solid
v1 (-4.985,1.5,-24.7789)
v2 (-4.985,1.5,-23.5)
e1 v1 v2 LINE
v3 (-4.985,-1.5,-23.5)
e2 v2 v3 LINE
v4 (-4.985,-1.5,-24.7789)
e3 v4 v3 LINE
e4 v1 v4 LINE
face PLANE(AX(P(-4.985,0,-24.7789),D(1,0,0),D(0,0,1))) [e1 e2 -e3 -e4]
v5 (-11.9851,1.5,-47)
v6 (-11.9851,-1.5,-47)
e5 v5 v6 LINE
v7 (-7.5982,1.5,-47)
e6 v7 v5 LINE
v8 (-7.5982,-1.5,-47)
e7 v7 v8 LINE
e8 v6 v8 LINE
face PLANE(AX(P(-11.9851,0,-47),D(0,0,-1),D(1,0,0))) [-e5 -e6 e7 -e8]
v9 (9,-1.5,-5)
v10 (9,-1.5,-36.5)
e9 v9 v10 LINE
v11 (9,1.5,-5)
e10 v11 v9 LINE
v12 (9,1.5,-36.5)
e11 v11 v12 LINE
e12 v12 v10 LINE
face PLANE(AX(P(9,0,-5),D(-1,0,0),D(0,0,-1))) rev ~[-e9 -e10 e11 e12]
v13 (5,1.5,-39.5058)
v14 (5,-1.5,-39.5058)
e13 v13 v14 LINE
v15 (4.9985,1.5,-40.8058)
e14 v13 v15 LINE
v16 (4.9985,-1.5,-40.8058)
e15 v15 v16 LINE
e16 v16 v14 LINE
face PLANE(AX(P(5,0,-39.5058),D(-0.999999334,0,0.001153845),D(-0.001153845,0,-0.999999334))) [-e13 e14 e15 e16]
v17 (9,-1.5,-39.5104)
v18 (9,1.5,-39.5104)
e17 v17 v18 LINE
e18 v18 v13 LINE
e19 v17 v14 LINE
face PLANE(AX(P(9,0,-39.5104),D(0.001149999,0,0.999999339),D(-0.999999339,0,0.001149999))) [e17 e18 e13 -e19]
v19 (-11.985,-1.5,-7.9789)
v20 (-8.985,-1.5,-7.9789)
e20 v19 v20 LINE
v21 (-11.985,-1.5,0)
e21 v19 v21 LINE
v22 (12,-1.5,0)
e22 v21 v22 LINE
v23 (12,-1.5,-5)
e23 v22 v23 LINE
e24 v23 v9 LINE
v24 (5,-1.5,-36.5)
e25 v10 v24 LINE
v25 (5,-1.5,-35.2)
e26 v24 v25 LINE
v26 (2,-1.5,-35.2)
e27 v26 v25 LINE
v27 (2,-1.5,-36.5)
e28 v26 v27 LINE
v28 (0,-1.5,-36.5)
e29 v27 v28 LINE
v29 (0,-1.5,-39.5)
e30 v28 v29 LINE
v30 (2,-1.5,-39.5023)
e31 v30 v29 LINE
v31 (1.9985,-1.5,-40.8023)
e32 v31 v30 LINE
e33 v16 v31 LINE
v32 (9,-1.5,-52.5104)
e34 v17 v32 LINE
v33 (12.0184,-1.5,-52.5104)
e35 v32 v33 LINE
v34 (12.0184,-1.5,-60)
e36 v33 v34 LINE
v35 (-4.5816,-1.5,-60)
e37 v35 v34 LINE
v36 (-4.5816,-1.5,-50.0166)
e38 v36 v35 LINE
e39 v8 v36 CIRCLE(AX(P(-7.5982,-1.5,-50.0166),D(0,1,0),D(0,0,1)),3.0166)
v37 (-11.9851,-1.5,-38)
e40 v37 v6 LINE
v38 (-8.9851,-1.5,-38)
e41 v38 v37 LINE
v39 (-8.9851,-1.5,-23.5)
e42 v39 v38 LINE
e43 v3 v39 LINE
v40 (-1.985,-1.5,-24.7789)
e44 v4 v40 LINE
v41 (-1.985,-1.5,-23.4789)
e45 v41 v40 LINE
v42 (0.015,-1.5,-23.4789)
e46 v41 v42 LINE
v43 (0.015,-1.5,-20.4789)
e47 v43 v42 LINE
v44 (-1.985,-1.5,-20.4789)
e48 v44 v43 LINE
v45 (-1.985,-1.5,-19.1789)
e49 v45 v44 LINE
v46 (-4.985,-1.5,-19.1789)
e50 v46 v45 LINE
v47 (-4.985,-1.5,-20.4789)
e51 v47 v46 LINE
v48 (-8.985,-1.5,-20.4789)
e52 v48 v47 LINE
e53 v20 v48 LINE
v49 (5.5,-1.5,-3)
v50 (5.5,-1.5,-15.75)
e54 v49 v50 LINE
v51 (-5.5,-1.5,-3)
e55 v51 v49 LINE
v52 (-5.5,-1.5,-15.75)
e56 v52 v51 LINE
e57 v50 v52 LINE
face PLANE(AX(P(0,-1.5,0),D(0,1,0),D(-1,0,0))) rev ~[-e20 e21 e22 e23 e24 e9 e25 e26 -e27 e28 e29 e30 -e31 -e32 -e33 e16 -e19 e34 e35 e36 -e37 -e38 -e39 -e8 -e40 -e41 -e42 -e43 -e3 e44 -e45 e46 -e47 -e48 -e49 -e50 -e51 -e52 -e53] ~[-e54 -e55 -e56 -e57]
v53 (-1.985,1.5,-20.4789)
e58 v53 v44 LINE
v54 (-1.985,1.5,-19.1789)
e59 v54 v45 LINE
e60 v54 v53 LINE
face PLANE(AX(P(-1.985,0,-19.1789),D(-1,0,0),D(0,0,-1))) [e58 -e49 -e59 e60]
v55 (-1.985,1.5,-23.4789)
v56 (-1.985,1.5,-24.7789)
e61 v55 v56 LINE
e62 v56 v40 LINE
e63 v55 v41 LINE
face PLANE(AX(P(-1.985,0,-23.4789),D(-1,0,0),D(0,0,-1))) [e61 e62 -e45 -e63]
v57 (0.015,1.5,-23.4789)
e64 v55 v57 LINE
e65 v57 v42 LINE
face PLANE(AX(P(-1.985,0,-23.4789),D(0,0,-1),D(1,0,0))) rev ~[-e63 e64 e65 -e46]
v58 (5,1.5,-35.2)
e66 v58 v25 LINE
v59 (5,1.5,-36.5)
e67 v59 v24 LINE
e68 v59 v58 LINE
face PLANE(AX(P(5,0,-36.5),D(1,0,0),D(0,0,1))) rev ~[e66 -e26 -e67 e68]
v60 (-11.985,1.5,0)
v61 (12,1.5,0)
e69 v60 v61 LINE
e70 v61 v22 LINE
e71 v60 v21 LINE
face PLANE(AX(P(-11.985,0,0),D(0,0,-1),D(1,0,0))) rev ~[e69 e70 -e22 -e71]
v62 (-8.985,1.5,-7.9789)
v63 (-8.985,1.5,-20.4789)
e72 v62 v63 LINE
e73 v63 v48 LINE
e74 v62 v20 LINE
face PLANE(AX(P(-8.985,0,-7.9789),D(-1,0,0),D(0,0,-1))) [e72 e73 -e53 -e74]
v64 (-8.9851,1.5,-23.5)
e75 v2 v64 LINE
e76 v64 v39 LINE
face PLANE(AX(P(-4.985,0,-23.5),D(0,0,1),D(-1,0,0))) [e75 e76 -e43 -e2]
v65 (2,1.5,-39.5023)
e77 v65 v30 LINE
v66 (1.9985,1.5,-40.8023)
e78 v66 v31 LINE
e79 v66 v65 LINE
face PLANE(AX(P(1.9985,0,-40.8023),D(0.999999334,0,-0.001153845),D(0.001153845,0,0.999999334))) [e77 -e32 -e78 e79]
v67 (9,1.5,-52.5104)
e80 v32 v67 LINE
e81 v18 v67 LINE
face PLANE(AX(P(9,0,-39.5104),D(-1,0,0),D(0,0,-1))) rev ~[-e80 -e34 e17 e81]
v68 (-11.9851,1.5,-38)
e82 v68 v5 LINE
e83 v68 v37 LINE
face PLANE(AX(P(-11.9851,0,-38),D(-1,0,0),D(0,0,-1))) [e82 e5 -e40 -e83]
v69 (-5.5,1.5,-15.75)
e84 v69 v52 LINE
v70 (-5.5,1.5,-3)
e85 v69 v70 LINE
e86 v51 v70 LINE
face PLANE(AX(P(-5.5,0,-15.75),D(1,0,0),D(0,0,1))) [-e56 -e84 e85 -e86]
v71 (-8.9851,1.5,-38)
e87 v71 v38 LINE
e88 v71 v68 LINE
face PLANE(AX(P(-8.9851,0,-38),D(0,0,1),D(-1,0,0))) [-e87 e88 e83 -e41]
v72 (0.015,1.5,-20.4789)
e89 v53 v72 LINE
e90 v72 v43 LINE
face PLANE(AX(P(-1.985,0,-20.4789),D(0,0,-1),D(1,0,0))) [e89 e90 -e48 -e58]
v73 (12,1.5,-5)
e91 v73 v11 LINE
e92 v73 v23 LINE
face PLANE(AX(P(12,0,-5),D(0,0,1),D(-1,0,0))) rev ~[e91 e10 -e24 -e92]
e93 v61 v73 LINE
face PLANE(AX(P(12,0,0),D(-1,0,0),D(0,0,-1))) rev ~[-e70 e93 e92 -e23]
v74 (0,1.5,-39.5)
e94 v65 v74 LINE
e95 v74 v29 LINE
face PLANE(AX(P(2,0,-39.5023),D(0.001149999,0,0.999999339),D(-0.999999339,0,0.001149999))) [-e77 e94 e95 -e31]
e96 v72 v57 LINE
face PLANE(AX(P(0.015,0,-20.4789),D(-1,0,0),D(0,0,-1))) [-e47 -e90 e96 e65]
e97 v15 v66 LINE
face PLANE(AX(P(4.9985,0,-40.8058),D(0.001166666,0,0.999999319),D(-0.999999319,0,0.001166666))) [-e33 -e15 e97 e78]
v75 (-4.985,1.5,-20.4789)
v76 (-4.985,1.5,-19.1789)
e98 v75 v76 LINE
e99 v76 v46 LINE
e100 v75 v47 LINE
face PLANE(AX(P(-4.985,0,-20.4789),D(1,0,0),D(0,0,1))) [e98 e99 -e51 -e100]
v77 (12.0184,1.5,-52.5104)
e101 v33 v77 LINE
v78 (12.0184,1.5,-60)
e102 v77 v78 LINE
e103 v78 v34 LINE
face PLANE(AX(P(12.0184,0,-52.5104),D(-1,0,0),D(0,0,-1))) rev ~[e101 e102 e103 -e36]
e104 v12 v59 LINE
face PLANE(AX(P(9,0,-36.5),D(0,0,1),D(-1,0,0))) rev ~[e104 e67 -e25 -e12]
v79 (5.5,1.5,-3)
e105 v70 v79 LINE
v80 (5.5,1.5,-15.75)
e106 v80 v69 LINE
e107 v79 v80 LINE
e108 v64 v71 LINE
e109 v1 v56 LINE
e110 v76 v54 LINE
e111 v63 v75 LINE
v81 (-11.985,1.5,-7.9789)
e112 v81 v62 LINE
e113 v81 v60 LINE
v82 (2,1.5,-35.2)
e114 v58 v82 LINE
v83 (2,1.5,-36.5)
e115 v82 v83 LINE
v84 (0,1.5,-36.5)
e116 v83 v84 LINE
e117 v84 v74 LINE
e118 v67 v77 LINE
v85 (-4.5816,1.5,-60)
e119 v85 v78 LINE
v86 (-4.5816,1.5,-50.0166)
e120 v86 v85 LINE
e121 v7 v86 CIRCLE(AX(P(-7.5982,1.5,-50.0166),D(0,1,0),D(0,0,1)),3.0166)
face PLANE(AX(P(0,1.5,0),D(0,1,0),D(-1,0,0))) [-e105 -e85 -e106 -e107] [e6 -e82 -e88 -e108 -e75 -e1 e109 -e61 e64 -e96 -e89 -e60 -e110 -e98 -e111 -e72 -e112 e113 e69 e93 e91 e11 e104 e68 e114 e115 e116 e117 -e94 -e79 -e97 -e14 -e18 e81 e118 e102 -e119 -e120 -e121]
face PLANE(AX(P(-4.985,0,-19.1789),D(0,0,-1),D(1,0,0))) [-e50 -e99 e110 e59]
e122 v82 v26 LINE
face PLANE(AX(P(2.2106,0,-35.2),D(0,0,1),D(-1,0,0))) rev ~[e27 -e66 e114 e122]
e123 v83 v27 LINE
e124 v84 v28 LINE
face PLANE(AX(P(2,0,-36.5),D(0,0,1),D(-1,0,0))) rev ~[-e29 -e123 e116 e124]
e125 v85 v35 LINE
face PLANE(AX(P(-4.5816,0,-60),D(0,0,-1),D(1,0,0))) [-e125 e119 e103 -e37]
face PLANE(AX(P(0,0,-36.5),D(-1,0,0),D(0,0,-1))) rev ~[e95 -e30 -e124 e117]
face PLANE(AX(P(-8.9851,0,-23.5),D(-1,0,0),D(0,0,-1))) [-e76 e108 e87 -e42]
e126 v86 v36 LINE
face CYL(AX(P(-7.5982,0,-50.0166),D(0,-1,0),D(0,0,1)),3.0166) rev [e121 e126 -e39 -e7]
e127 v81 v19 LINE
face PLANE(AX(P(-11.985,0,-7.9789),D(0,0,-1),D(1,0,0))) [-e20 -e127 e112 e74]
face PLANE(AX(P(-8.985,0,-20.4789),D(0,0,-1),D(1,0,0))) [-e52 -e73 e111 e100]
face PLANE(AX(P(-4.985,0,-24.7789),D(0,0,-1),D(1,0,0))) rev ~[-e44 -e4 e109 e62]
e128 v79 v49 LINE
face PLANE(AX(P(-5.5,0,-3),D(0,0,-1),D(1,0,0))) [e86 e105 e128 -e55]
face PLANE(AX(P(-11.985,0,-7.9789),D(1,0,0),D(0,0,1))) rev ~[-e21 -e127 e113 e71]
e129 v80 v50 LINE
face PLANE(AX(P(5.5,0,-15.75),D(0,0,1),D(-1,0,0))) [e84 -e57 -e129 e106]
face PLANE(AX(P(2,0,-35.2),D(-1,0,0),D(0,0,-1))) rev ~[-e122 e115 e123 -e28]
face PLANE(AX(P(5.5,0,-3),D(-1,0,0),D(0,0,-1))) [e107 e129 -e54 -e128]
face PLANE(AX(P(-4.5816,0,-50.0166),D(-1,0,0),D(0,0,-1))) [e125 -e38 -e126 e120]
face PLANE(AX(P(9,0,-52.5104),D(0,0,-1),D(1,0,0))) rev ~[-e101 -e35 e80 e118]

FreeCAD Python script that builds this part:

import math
import FreeCAD as App
import Part
import Sketcher


def add_polygon(sketch, points):
    """Adds a closed chain of lines whose ends are joined by coincident constraints."""
    first, n = sketch.GeometryCount, len(points)
    for a, b in zip(points, points[1:] + points[:1]):
        sketch.addGeometry(Part.LineSegment(App.Vector(*a, 0), App.Vector(*b, 0)), False)
    for i in range(n):
        sketch.addConstraint(Sketcher.Constraint("Coincident", first + i, 2, first + (i + 1) % n, 1))

doc = App.newDocument("Part")
body = doc.addObject("PartDesign::Body", "Body")

# Sketch on XZ plane
sketch1 = body.newObject("Sketcher::SketchObject", "Sketch")
sketch1.AttachmentSupport = (doc.getObject("XZ_Plane"), [""])
sketch1.MapMode = "FlatFace"
sketch1.addGeometry(Part.LineSegment(App.Vector(5, -39.5, 0), App.Vector(9, -39.5, 0)), False)  # 0
sketch1.addGeometry(Part.LineSegment(App.Vector(9, -39.5, 0), App.Vector(9, -52.5, 0)), False)  # 1
sketch1.addGeometry(Part.LineSegment(App.Vector(9, -52.5, 0), App.Vector(12, -52.5, 0)), False)  # 2
sketch1.addGeometry(Part.LineSegment(App.Vector(12, -52.5, 0), App.Vector(12, -60, 0)), False)  # 3
sketch1.addGeometry(Part.LineSegment(App.Vector(12, -60, 0), App.Vector(-4.6, -60, 0)), False)  # 4
sketch1.addGeometry(Part.LineSegment(App.Vector(-4.6, -60, 0), App.Vector(-4.6, -50, 0)), False)  # 5
sketch1.addGeometry(Part.ArcOfCircle(Part.Circle(App.Vector(-7.6, -50, 0), App.Vector(0, 0, 1), 3), math.radians(0), math.radians(90)), False)  # 6
sketch1.addGeometry(Part.LineSegment(App.Vector(-7.6, -47, 0), App.Vector(-12, -47, 0)), False)  # 7
sketch1.addGeometry(Part.LineSegment(App.Vector(-12, -47, 0), App.Vector(-12, -38, 0)), False)  # 8
sketch1.addGeometry(Part.LineSegment(App.Vector(-12, -38, 0), App.Vector(-9, -38, 0)), False)  # 9
sketch1.addGeometry(Part.LineSegment(App.Vector(-9, -38, 0), App.Vector(-9, -23.5, 0)), False)  # 10
sketch1.addGeometry(Part.LineSegment(App.Vector(-9, -23.5, 0), App.Vector(-5, -23.5, 0)), False)  # 11
sketch1.addGeometry(Part.LineSegment(App.Vector(-5, -23.5, 0), App.Vector(-5, -24.8, 0)), False)  # 12
sketch1.addGeometry(Part.LineSegment(App.Vector(-5, -24.8, 0), App.Vector(-2, -24.8, 0)), False)  # 13
sketch1.addGeometry(Part.LineSegment(App.Vector(-2, -24.8, 0), App.Vector(-2, -23.5, 0)), False)  # 14
sketch1.addGeometry(Part.LineSegment(App.Vector(-2, -23.5, 0), App.Vector(0, -23.5, 0)), False)  # 15
sketch1.addGeometry(Part.LineSegment(App.Vector(0, -23.5, 0), App.Vector(0, -20.5, 0)), False)  # 16
sketch1.addGeometry(Part.LineSegment(App.Vector(0, -20.5, 0), App.Vector(-2, -20.5, 0)), False)  # 17
sketch1.addGeometry(Part.LineSegment(App.Vector(-2, -20.5, 0), App.Vector(-2, -19.2, 0)), False)  # 18
sketch1.addGeometry(Part.LineSegment(App.Vector(-2, -19.2, 0), App.Vector(-5, -19.2, 0)), False)  # 19
sketch1.addGeometry(Part.LineSegment(App.Vector(-5, -19.2, 0), App.Vector(-5, -20.5, 0)), False)  # 20
sketch1.addGeometry(Part.LineSegment(App.Vector(-5, -20.5, 0), App.Vector(-9, -20.5, 0)), False)  # 21
sketch1.addGeometry(Part.LineSegment(App.Vector(-9, -20.5, 0), App.Vector(-9, -8, 0)), False)  # 22
sketch1.addGeometry(Part.LineSegment(App.Vector(-9, -8, 0), App.Vector(-12, -8, 0)), False)  # 23
sketch1.addGeometry(Part.LineSegment(App.Vector(-12, -8, 0), App.Vector(-12, 0, 0)), False)  # 24
sketch1.addGeometry(Part.LineSegment(App.Vector(-12, 0, 0), App.Vector(12, 0, 0)), False)  # 25
sketch1.addGeometry(Part.LineSegment(App.Vector(12, 0, 0), App.Vector(12, -5, 0)), False)  # 26
sketch1.addGeometry(Part.LineSegment(App.Vector(12, -5, 0), App.Vector(9, -5, 0)), False)  # 27
sketch1.addGeometry(Part.LineSegment(App.Vector(9, -5, 0), App.Vector(9, -36.5, 0)), False)  # 28
sketch1.addGeometry(Part.LineSegment(App.Vector(9, -36.5, 0), App.Vector(5, -36.5, 0)), False)  # 29
sketch1.addGeometry(Part.LineSegment(App.Vector(5, -36.5, 0), App.Vector(5, -35.2, 0)), False)  # 30
sketch1.addGeometry(Part.LineSegment(App.Vector(5, -35.2, 0), App.Vector(2, -35.2, 0)), False)  # 31
sketch1.addGeometry(Part.LineSegment(App.Vector(2, -35.2, 0), App.Vector(2, -36.5, 0)), False)  # 32
sketch1.addGeometry(Part.LineSegment(App.Vector(2, -36.5, 0), App.Vector(0, -36.5, 0)), False)  # 33
sketch1.addGeometry(Part.LineSegment(App.Vector(0, -36.5, 0), App.Vector(0, -39.5, 0)), False)  # 34
sketch1.addGeometry(Part.LineSegment(App.Vector(0, -39.5, 0), App.Vector(2, -39.5, 0)), False)  # 35
sketch1.addGeometry(Part.LineSegment(App.Vector(2, -39.5, 0), App.Vector(2, -40.8, 0)), False)  # 36
sketch1.addGeometry(Part.LineSegment(App.Vector(2, -40.8, 0), App.Vector(5, -40.8, 0)), False)  # 37
sketch1.addGeometry(Part.LineSegment(App.Vector(5, -40.8, 0), App.Vector(5, -39.5, 0)), False)  # 38
add_polygon(sketch1, [(5.5, -3), (-5.5, -3), (-5.5, -15.8), (5.5, -15.8)])  # lines 39-42
sketch1.addConstraint(Sketcher.Constraint("Coincident", 0, 2, 1, 1))
sketch1.addConstraint(Sketcher.Constraint("Coincident", 1, 2, 2, 1))
sketch1.addConstraint(Sketcher.Constraint("Coincident", 2, 2, 3, 1))
sketch1.addConstraint(Sketcher.Constraint("Coincident", 3, 2, 4, 1))
sketch1.addConstraint(Sketcher.Constraint("Coincident", 4, 2, 5, 1))
sketch1.addConstraint(Sketcher.Constraint("Tangent", 5, 2, 6, 1))
sketch1.addConstraint(Sketcher.Constraint("Tangent", 6, 2, 7, 1))
sketch1.addConstraint(Sketcher.Constraint("Coincident", 7, 2, 8, 1))
sketch1.addConstraint(Sketcher.Constraint("Coincident", 8, 2, 9, 1))
sketch1.addConstraint(Sketcher.Constraint("Coincident", 9, 2, 10, 1))
sketch1.addConstraint(Sketcher.Constraint("Coincident", 10, 2, 11, 1))
sketch1.addConstraint(Sketcher.Constraint("Coincident", 11, 2, 12, 1))
sketch1.addConstraint(Sketcher.Constraint("Coincident", 12, 2, 13, 1))
sketch1.addConstraint(Sketcher.Constraint("Coincident", 13, 2, 14, 1))
sketch1.addConstraint(Sketcher.Constraint("Coincident", 14, 2, 15, 1))
sketch1.addConstraint(Sketcher.Constraint("Coincident", 15, 2, 16, 1))
sketch1.addConstraint(Sketcher.Constraint("Coincident", 16, 2, 17, 1))
sketch1.addConstraint(Sketcher.Constraint("Coincident", 17, 2, 18, 1))
sketch1.addConstraint(Sketcher.Constraint("Coincident", 18, 2, 19, 1))
sketch1.addConstraint(Sketcher.Constraint("Coincident", 19, 2, 20, 1))
sketch1.addConstraint(Sketcher.Constraint("Coincident", 20, 2, 21, 1))
sketch1.addConstraint(Sketcher.Constraint("Coincident", 21, 2, 22, 1))
sketch1.addConstraint(Sketcher.Constraint("Coincident", 22, 2, 23, 1))
sketch1.addConstraint(Sketcher.Constraint("Coincident", 23, 2, 24, 1))
sketch1.addConstraint(Sketcher.Constraint("Coincident", 24, 2, 25, 1))
sketch1.addConstraint(Sketcher.Constraint("Coincident", 25, 2, 26, 1))
sketch1.addConstraint(Sketcher.Constraint("Coincident", 26, 2, 27, 1))
sketch1.addConstraint(Sketcher.Constraint("Coincident", 27, 2, 28, 1))
sketch1.addConstraint(Sketcher.Constraint("Coincident", 28, 2, 29, 1))
sketch1.addConstraint(Sketcher.Constraint("Coincident", 29, 2, 30, 1))
sketch1.addConstraint(Sketcher.Constraint("Coincident", 30, 2, 31, 1))
sketch1.addConstraint(Sketcher.Constraint("Coincident", 31, 2, 32, 1))
sketch1.addConstraint(Sketcher.Constraint("Coincident", 32, 2, 33, 1))
sketch1.addConstraint(Sketcher.Constraint("Coincident", 33, 2, 34, 1))
sketch1.addConstraint(Sketcher.Constraint("Coincident", 34, 2, 35, 1))
sketch1.addConstraint(Sketcher.Constraint("Coincident", 35, 2, 36, 1))
sketch1.addConstraint(Sketcher.Constraint("Coincident", 36, 2, 37, 1))
sketch1.addConstraint(Sketcher.Constraint("Coincident", 37, 2, 38, 1))
sketch1.addConstraint(Sketcher.Constraint("Coincident", 38, 2, 0, 1))
sketch1.addConstraint(Sketcher.Constraint("Vertical", 1))
sketch1.addConstraint(Sketcher.Constraint("Horizontal", 2))
sketch1.addConstraint(Sketcher.Constraint("Vertical", 3))
sketch1.addConstraint(Sketcher.Constraint("Horizontal", 4))
sketch1.addConstraint(Sketcher.Constraint("Vertical", 5))
sketch1.addConstraint(Sketcher.Constraint("Horizontal", 7))
sketch1.addConstraint(Sketcher.Constraint("Vertical", 8))
sketch1.addConstraint(Sketcher.Constraint("Horizontal", 9))
sketch1.addConstraint(Sketcher.Constraint("Vertical", 10))
sketch1.addConstraint(Sketcher.Constraint("Horizontal", 11))
sketch1.addConstraint(Sketcher.Constraint("Vertical", 12))
sketch1.addConstraint(Sketcher.Constraint("Horizontal", 13))
sketch1.addConstraint(Sketcher.Constraint("Vertical", 14))
sketch1.addConstraint(Sketcher.Constraint("Horizontal", 15))
sketch1.addConstraint(Sketcher.Constraint("Vertical", 16))
sketch1.addConstraint(Sketcher.Constraint("Horizontal", 17))
sketch1.addConstraint(Sketcher.Constraint("Vertical", 18))
sketch1.addConstraint(Sketcher.Constraint("Horizontal", 19))
sketch1.addConstraint(Sketcher.Constraint("Vertical", 20))
sketch1.addConstraint(Sketcher.Constraint("Horizontal", 21))
sketch1.addConstraint(Sketcher.Constraint("Vertical", 22))
sketch1.addConstraint(Sketcher.Constraint("Horizontal", 23))
sketch1.addConstraint(Sketcher.Constraint("Vertical", 24))
sketch1.addConstraint(Sketcher.Constraint("Horizontal", 25))
sketch1.addConstraint(Sketcher.Constraint("Vertical", 26))
sketch1.addConstraint(Sketcher.Constraint("Horizontal", 27))
sketch1.addConstraint(Sketcher.Constraint("Vertical", 28))
sketch1.addConstraint(Sketcher.Constraint("Horizontal", 29))
sketch1.addConstraint(Sketcher.Constraint("Vertical", 30))
sketch1.addConstraint(Sketcher.Constraint("Horizontal", 31))
sketch1.addConstraint(Sketcher.Constraint("Vertical", 32))
sketch1.addConstraint(Sketcher.Constraint("Horizontal", 33))
sketch1.addConstraint(Sketcher.Constraint("Vertical", 34))
sketch1.addConstraint(Sketcher.Constraint("Horizontal", 39))
sketch1.addConstraint(Sketcher.Constraint("Vertical", 40))
sketch1.addConstraint(Sketcher.Constraint("Horizontal", 41))
sketch1.addConstraint(Sketcher.Constraint("Vertical", 42))
sketch1.addConstraint(Sketcher.Constraint("PointOnObject", 24, 2, -1))
sketch1.addConstraint(Sketcher.Constraint("PointOnObject", 33, 2, -2))
sketch1.addConstraint(Sketcher.Constraint("Parallel", 0, 35))
sketch1.addConstraint(Sketcher.Constraint("Perpendicular", 35, 36))
sketch1.addConstraint(Sketcher.Constraint("Perpendicular", 36, 37))
sketch1.addConstraint(Sketcher.Constraint("Perpendicular", 37, 38))
sketch1.addConstraint(Sketcher.Constraint("Horizontal", 17, 2, 20, 2))
sketch1.addConstraint(Sketcher.Constraint("Horizontal", 29, 2, 32, 2))
sketch1.addConstraint(Sketcher.Constraint("Vertical", 14, 2, 17, 2))
sketch1.addConstraint(Sketcher.Constraint("Vertical", 12, 2, 19, 2))
sketch1.addConstraint(Sketcher.Constraint("Vertical", 10, 2, 21, 2))
sketch1.addConstraint(Sketcher.Constraint("Vertical", 8, 2, 23, 2))
sketch1.addConstraint(Sketcher.Constraint("Vertical", 1, 2, 27, 2))
sketch1.addConstraint(Sketcher.Constraint("Vertical", 32, 2, 35, 2))
sketch1.addConstraint(Sketcher.Constraint("Vertical", 30, 2, 38, 2))
sketch1.addConstraint(Sketcher.Constraint("Equal", 9, 13))
sketch1.addConstraint(Sketcher.Constraint("Equal", 23, 27))
sketch1.addConstraint(Sketcher.Constraint("Equal", 21, 29))
sketch1.addConstraint(Sketcher.Constraint("Equal", 27, 31))
sketch1.addConstraint(Sketcher.Constraint("Equal", 17, 33))
sketch1.addConstraint(Sketcher.Constraint("Equal", 31, 16))
sketch1.addConstraint(Sketcher.Constraint("Equal", 14, 18))
sketch1.addConstraint(Sketcher.Constraint("Equal", 20, 30))
sketch1.addConstraint(Sketcher.Constraint("Equal", 16, 34))
sketch1.addConstraint(Sketcher.Constraint("Equal", 36, 38))
sketch1.addConstraint(Sketcher.Constraint("DistanceX", 9, 1, 9, 2, 3.0))
sketch1.addConstraint(Sketcher.Constraint("DistanceX", 11, 1, 11, 2, 4.0))
sketch1.addConstraint(Sketcher.Constraint("DistanceX", 15, 1, 15, 2, 2.0))
sketch1.addConstraint(Sketcher.Constraint("DistanceX", 39, 2, 39, 1, 11.0))
sketch1.addConstraint(Sketcher.Constraint("DistanceY", 1, 2, 1, 1, 13.0))
sketch1.addConstraint(Sketcher.Constraint("DistanceY", 26, 2, 26, 1, 5.0))
sketch1.addConstraint(Sketcher.Constraint("DistanceX", 4, 2, 4, 1, 16.6))
sketch1.addConstraint(Sketcher.Constraint("DistanceY", 10, 1, 10, 2, 14.5))
sketch1.addConstraint(Sketcher.Constraint("DistanceY", 14, 1, 14, 2, 1.3))
sketch1.addConstraint(Sketcher.Constraint("DistanceY", 28, 2, 28, 1, 31.5))
sketch1.addConstraint(Sketcher.Constraint("DistanceY", 39, 2, -1, 1, 3.0))
sketch1.addConstraint(Sketcher.Constraint("DistanceY", 4, 2, 6, 2, 13.0))
sketch1.addConstraint(Sketcher.Constraint("Distance", 36, 1.3))
sketch1.addConstraint(Sketcher.Constraint("DistanceY", 40, 2, 40, 1, 12.75))
sketch1.addConstraint(Sketcher.Constraint("DistanceX", 39, 2, 27, 2, 14.5))
sketch1.addConstraint(Sketcher.Constraint("DistanceY", 8, 1, 8, 2, 9.0))
sketch1.addConstraint(Sketcher.Constraint("DistanceY", 22, 1, 22, 2, 12.5))
sketch1.addConstraint(Sketcher.Constraint("DistanceY", 3, 2, -1, 1, 60.0))
sketch1.addConstraint(Sketcher.Constraint("Radius", 6, 3.0166))
sketch1.addConstraint(Sketcher.Constraint("DistanceX", 7, 2, 7, 1, 4.387))
sketch1.addConstraint(Sketcher.Constraint("DistanceX", 25, 1, 25, 2, 23.985))
sketch1.addConstraint(Sketcher.Constraint("DistanceY", 12, 2, 12, 1, 1.279))
sketch1.addConstraint(Sketcher.Constraint("DistanceY", 3, 2, 3, 1, 7.4896))
pad1 = body.newObject("PartDesign::Pad", "Pad")
pad1.Profile = sketch1
pad1.Length = 3
pad1.Midplane = True

doc.recompute()
